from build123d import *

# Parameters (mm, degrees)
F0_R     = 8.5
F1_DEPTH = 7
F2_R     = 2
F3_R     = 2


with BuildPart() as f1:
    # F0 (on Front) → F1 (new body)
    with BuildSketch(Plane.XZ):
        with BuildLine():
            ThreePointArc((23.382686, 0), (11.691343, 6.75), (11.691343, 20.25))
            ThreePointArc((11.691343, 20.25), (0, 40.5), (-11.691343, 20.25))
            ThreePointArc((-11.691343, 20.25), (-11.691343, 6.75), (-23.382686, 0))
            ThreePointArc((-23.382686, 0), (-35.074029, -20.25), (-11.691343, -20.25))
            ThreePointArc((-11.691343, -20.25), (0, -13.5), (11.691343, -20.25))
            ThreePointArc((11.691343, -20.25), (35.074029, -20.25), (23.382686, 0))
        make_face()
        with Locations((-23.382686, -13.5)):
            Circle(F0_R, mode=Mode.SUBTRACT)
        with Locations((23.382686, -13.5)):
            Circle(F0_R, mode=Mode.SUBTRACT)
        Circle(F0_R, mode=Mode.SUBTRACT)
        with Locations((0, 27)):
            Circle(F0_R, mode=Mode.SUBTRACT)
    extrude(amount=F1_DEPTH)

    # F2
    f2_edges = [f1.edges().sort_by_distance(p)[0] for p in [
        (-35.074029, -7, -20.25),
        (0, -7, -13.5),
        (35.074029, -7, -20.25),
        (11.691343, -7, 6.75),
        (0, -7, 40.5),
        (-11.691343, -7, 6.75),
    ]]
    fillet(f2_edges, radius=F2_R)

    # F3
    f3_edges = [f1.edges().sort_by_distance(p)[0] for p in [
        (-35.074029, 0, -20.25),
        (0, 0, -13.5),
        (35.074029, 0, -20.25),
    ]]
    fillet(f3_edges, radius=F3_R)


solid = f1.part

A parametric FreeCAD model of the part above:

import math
import FreeCAD as App
import Part
import Sketcher

V = App.Vector
Q = App.Units.Quantity


def edges_at(feature, points):
    """Names of the edges that pass closest to the given points."""
    edges = feature.Shape.Edges
    near = lambda p: min(range(len(edges)), key=lambda i: edges[i].distToShape(Part.Vertex(*p))[0])
    return sorted({f"Edge{near(p) + 1}" for p in points})

doc = App.newDocument("Part")
body = doc.addObject("PartDesign::Body", "Body")

# Sketch on XZ plane
sketch1 = body.newObject("Sketcher::SketchObject", "Sketch")
sketch1.AttachmentSupport = (doc.getObject("XZ_Plane"), [""])
sketch1.MapMode = "FlatFace"
sketch1.addGeometry([
    Part.ArcOfCircle(Part.Circle(V(23, 14, 0), V(0, 0, 1), 14), math.radians(150), math.radians(270)),  # 0
    Part.ArcOfCircle(Part.Circle(V(0, 27, 0), V(0, 0, 1), 14), math.radians(-30), math.radians(210)),  # 1
    Part.ArcOfCircle(Part.Circle(V(-23, 14, 0), V(0, 0, 1), 14), math.radians(-90), math.radians(30)),  # 2
    Part.ArcOfCircle(Part.Circle(V(-23, -14, 0), V(0, 0, 1), 14), math.radians(90), math.radians(330)),  # 3
    Part.ArcOfCircle(Part.Circle(V(0, -27, 0), V(0, 0, 1), 14), math.radians(30), math.radians(150)),  # 4
    Part.ArcOfCircle(Part.Circle(V(23, -14, 0), V(0, 0, 1), 14), math.radians(-150), math.radians(90)),  # 5
    Part.Circle(V(-23, -14, 0), V(0, 0, 1), 8),  # 6
    Part.Circle(V(23, -14, 0), V(0, 0, 1), 8),  # 7
    Part.Circle(V(0, 0, 0), V(0, 0, 1), 8),  # 8
    Part.Circle(V(0, 27, 0), V(0, 0, 1), 8),  # 9
], False)
sketch1.addConstraint([
    Sketcher.Constraint("Tangent", 0, 1, 1, 1),
    Sketcher.Constraint("Tangent", 1, 2, 2, 2),
    Sketcher.Constraint("Tangent", 2, 1, 3, 1),
    Sketcher.Constraint("Tangent", 3, 2, 4, 2),
    Sketcher.Constraint("Tangent", 4, 1, 5, 1),
    Sketcher.Constraint("Tangent", 5, 2, 0, 2),
    Sketcher.Constraint("Coincident", 8, 3, -1, 1),
    Sketcher.Constraint("Coincident", 6, 3, 3, 3),
    Sketcher.Constraint("Coincident", 7, 3, 5, 3),
    Sketcher.Constraint("Coincident", 9, 3, 1, 3),
    Sketcher.Constraint("Equal", 0, 1),
    Sketcher.Constraint("Equal", 1, 2),
    Sketcher.Constraint("Equal", 2, 3),
    Sketcher.Constraint("Equal", 3, 4),
    Sketcher.Constraint("Equal", 4, 5),
    Sketcher.Constraint("Equal", 6, 7),
    Sketcher.Constraint("Equal", 7, 8),
    Sketcher.Constraint("Equal", 8, 9),
    Sketcher.Constraint("Symmetric", 0, 3, 3, 3, -1, 1),
    Sketcher.Constraint("Symmetric", 0, 3, 2, 3, -2),
    Sketcher.Constraint("PointOnObject", 4, 3, -2),
    Sketcher.Constraint("Diameter", 6, Q("17 mm")),
    Sketcher.Constraint("Radius", 0, Q("13.5 mm")),
    Sketcher.Constraint("DistanceY", -1, 1, 1, 3, Q("27 mm")),
])
pad1 = body.newObject("PartDesign::Pad", "Pad")
pad1.Profile = sketch1
pad1.Length = 7
doc.recompute()

fillet = body.newObject("PartDesign::Fillet", "Fillet")
fillet.Base = (pad1, edges_at(pad1, [
    (-35.074, -7, -20.25),
    (0, -7, -13.5),
    (35.074, -7, -20.25),
    (11.691, -7, 6.75),
    (0, -7, 40.5),
    (-11.691, -7, 6.75),
]))
fillet.Radius = 2
doc.recompute()

fillet2 = body.newObject("PartDesign::Fillet", "Fillet001")
fillet2.Base = (fillet, edges_at(fillet, [(-35.074, 0, -20.25), (0, 0, -13.5), (35.074, 0, -20.25)]))
fillet2.Radius = 2

doc.recompute()
